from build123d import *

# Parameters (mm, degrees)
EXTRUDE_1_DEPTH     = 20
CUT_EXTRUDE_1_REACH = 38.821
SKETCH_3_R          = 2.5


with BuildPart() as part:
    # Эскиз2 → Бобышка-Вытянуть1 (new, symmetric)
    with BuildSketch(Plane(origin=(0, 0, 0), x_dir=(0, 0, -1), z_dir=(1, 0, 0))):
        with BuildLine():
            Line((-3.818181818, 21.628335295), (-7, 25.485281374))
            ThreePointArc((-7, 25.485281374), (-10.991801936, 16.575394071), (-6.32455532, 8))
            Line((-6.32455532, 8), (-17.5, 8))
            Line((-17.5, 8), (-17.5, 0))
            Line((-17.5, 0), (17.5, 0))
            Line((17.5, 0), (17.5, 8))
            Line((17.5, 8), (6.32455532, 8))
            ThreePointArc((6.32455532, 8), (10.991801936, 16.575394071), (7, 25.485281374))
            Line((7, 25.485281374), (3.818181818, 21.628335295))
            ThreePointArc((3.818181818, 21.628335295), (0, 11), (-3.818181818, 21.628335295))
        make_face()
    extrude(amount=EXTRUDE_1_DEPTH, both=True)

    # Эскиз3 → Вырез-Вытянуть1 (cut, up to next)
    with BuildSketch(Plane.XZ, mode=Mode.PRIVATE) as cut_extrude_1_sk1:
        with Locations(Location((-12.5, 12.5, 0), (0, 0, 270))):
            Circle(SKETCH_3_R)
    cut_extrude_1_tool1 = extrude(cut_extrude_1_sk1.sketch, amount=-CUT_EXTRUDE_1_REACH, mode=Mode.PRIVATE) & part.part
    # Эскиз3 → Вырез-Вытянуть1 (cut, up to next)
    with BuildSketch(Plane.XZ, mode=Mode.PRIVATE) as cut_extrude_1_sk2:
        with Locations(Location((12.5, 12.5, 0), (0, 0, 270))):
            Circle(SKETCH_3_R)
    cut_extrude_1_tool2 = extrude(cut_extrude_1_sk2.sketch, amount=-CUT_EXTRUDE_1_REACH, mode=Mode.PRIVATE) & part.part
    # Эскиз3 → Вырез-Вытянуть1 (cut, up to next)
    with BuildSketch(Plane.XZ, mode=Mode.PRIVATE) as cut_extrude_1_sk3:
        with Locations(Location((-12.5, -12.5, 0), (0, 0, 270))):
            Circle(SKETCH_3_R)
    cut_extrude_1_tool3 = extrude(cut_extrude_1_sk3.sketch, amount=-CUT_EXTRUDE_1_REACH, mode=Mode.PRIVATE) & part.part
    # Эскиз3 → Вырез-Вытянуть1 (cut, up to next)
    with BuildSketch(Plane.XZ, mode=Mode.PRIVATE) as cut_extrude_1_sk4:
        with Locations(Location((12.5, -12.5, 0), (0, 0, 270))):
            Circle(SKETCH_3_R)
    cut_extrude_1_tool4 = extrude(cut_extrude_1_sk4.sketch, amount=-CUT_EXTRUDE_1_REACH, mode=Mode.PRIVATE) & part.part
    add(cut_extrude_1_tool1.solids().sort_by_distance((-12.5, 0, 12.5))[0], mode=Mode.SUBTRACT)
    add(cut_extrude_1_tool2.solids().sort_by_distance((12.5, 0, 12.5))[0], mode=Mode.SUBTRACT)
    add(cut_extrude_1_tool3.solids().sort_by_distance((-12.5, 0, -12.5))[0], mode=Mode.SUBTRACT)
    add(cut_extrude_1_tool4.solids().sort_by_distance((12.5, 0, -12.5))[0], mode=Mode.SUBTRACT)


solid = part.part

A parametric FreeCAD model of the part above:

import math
import FreeCAD as App
import Part
import Sketcher

V = App.Vector

doc = App.newDocument("Part")
params = doc.addObject("Spreadsheet::Sheet", "Params")
for row, (alias, value) in enumerate([
    ("sketch1_radius", "11 mm"),
    ("sketch1_radius2", "6 mm"),
    ("sketch1_width", "8 mm"),
    ("sketch1_height", "35 mm"),
    ("pad1_length", "40 mm"),
    ("sketch2_diameter", "5 mm"),
    ("sketch3_diameter", "5 mm"),
    ("sketch4_diameter", "5 mm"),
    ("sketch5_diameter", "5 mm"),
], start=1):
    params.set(f"A{row}", alias)
    params.set(f"B{row}", "=" + value)
    params.setAlias(f"B{row}", alias)

body = doc.addObject("PartDesign::Body", "Body")

sketch1 = body.newObject("Sketcher::SketchObject", "Sketch")
sketch1.AttachmentSupport = (doc.getObject("YZ_Plane"), [""])
sketch1.MapMode = "FlatFace"
sketch1.addGeometry([
    Part.LineSegment(V(21.628335, 3.818182, 0), V(25.485281, 7, 0)),
    Part.ArcOfCircle(Part.Circle(V(17, 0, 0), V(0, 0, 1), 11), math.radians(39.521196), math.radians(144.903199)),
    Part.LineSegment(V(8, 6.324555, 0), V(8, 17.5, 0)),
    Part.LineSegment(V(8, 17.5, 0), V(0, 17.5, 0)),
    Part.LineSegment(V(0, 17.5, 0), V(0, -17.5, 0)),
    Part.LineSegment(V(0, -17.5, 0), V(8, -17.5, 0)),
    Part.LineSegment(V(8, -17.5, 0), V(8, -6.324555, 0)),
    Part.ArcOfCircle(Part.Circle(V(17, 0, 0), V(0, 0, 1), 11), math.radians(-144.903199), math.radians(-39.521196)),
    Part.LineSegment(V(25.485281, -7, 0), V(21.628335, -3.818182, 0)),
    Part.ArcOfCircle(Part.Circle(V(17, 0, 0), V(0, 0, 1), 6), math.radians(39.521196), math.radians(320.478804)),
], False)
sketch1.addConstraint([
    Sketcher.Constraint("Coincident", 0, 2, 1, 1),
    Sketcher.Constraint("Coincident", 1, 2, 2, 1),
    Sketcher.Constraint("Coincident", 2, 2, 3, 1),
    Sketcher.Constraint("Coincident", 3, 2, 4, 1),
    Sketcher.Constraint("Coincident", 4, 2, 5, 1),
    Sketcher.Constraint("Coincident", 5, 2, 6, 1),
    Sketcher.Constraint("Coincident", 6, 2, 7, 1),
    Sketcher.Constraint("Coincident", 7, 2, 8, 1),
    Sketcher.Constraint("Coincident", 8, 2, 9, 2),
    Sketcher.Constraint("Coincident", 9, 1, 0, 1),
    Sketcher.Constraint("Vertical", 2),
    Sketcher.Constraint("Horizontal", 3),
    Sketcher.Constraint("Vertical", 4),
    Sketcher.Constraint("Horizontal", 5),
    Sketcher.Constraint("Vertical", 6),
    Sketcher.Constraint("Coincident", 7, 3, 1, 3),
    Sketcher.Constraint("Coincident", 9, 3, 1, 3),
    Sketcher.Constraint("Equal", 1, 7),
    Sketcher.Constraint("Symmetric", 3, 2, 4, 2, -1, 1),
    Sketcher.Constraint("Symmetric", 1, 2, 6, 2, -1),
    Sketcher.Constraint("Vertical", 0, 2, 7, 2),
    Sketcher.Constraint("Vertical", 8, 2, 9, 1),
    Sketcher.Constraint("Radius", 1, 11.0),
    Sketcher.Constraint("Radius", 9, 6.0),
    Sketcher.Constraint("DistanceX", 3, 2, 3, 1, 8.0),
    Sketcher.Constraint("DistanceY", 4, 2, 4, 1, 35.0),
    Sketcher.Constraint("DistanceX", -1, 1, 1, 3, 17.0),
    Sketcher.Constraint("DistanceY", -1, 1, 0, 2, 7.0),
    Sketcher.Constraint("DistanceY", 8, 2, -1, 1, 3.818182),
])
sketch1.setExpression("Constraints[22]", "Params.sketch1_radius")
sketch1.setExpression("Constraints[23]", "Params.sketch1_radius2")
sketch1.setExpression("Constraints[24]", "Params.sketch1_width")
sketch1.setExpression("Constraints[25]", "Params.sketch1_height")
pad1 = body.newObject("PartDesign::Pad", "Pad")
pad1.Profile = sketch1
pad1.setExpression("Length", "Params.pad1_length")
pad1.Midplane = True

sketch2 = body.newObject("Sketcher::SketchObject", "Sketch001")
sketch2.AttachmentSupport = (doc.getObject("XZ_Plane"), [""])
sketch2.MapMode = "FlatFace"
sketch2.addGeometry(Part.Circle(V(-12.5, 12.5, 0), V(0, 0, 1), 2.5), False)
sketch2.addConstraint([
    Sketcher.Constraint("Diameter", 0, 5.0),
    Sketcher.Constraint("DistanceX", 0, 3, -1, 1, 12.5),
    Sketcher.Constraint("DistanceY", -1, 1, 0, 3, 12.5),
])
sketch2.setExpression("Constraints[0]", "Params.sketch2_diameter")
pocket1 = body.newObject("PartDesign::Pocket", "Pocket")
pocket1.Profile = sketch2
pocket1.Type = "UpToFirst"

sketch3 = body.newObject("Sketcher::SketchObject", "Sketch002")
sketch3.AttachmentSupport = (doc.getObject("XZ_Plane"), [""])
sketch3.MapMode = "FlatFace"
sketch3.addGeometry(Part.Circle(V(12.5, 12.5, 0), V(0, 0, 1), 2.5), False)
sketch3.addConstraint([
    Sketcher.Constraint("Diameter", 0, 5.0),
    Sketcher.Constraint("DistanceX", -1, 1, 0, 3, 12.5),
    Sketcher.Constraint("DistanceY", -1, 1, 0, 3, 12.5),
])
sketch3.setExpression("Constraints[0]", "Params.sketch3_diameter")
pocket2 = body.newObject("PartDesign::Pocket", "Pocket001")
pocket2.Profile = sketch3
pocket2.Type = "UpToFirst"

sketch4 = body.newObject("Sketcher::SketchObject", "Sketch003")
sketch4.AttachmentSupport = (doc.getObject("XZ_Plane"), [""])
sketch4.MapMode = "FlatFace"
sketch4.addGeometry(Part.Circle(V(-12.5, -12.5, 0), V(0, 0, 1), 2.5), False)
sketch4.addConstraint([
    Sketcher.Constraint("Diameter", 0, 5.0),
    Sketcher.Constraint("DistanceX", 0, 3, -1, 1, 12.5),
    Sketcher.Constraint("DistanceY", 0, 3, -1, 1, 12.5),
])
sketch4.setExpression("Constraints[0]", "Params.sketch4_diameter")
pocket3 = body.newObject("PartDesign::Pocket", "Pocket002")
pocket3.Profile = sketch4
pocket3.Type = "UpToFirst"

sketch5 = body.newObject("Sketcher::SketchObject", "Sketch004")
sketch5.AttachmentSupport = (doc.getObject("XZ_Plane"), [""])
sketch5.MapMode = "FlatFace"
sketch5.addGeometry(Part.Circle(V(12.5, -12.5, 0), V(0, 0, 1), 2.5), False)
sketch5.addConstraint([
    Sketcher.Constraint("Diameter", 0, 5.0),
    Sketcher.Constraint("DistanceX", -1, 1, 0, 3, 12.5),
    Sketcher.Constraint("DistanceY", 0, 3, -1, 1, 12.5),
])
sketch5.setExpression("Constraints[0]", "Params.sketch5_diameter")
pocket4 = body.newObject("PartDesign::Pocket", "Pocket003")
pocket4.Profile = sketch5
pocket4.Type = "UpToFirst"

doc.recompute()
